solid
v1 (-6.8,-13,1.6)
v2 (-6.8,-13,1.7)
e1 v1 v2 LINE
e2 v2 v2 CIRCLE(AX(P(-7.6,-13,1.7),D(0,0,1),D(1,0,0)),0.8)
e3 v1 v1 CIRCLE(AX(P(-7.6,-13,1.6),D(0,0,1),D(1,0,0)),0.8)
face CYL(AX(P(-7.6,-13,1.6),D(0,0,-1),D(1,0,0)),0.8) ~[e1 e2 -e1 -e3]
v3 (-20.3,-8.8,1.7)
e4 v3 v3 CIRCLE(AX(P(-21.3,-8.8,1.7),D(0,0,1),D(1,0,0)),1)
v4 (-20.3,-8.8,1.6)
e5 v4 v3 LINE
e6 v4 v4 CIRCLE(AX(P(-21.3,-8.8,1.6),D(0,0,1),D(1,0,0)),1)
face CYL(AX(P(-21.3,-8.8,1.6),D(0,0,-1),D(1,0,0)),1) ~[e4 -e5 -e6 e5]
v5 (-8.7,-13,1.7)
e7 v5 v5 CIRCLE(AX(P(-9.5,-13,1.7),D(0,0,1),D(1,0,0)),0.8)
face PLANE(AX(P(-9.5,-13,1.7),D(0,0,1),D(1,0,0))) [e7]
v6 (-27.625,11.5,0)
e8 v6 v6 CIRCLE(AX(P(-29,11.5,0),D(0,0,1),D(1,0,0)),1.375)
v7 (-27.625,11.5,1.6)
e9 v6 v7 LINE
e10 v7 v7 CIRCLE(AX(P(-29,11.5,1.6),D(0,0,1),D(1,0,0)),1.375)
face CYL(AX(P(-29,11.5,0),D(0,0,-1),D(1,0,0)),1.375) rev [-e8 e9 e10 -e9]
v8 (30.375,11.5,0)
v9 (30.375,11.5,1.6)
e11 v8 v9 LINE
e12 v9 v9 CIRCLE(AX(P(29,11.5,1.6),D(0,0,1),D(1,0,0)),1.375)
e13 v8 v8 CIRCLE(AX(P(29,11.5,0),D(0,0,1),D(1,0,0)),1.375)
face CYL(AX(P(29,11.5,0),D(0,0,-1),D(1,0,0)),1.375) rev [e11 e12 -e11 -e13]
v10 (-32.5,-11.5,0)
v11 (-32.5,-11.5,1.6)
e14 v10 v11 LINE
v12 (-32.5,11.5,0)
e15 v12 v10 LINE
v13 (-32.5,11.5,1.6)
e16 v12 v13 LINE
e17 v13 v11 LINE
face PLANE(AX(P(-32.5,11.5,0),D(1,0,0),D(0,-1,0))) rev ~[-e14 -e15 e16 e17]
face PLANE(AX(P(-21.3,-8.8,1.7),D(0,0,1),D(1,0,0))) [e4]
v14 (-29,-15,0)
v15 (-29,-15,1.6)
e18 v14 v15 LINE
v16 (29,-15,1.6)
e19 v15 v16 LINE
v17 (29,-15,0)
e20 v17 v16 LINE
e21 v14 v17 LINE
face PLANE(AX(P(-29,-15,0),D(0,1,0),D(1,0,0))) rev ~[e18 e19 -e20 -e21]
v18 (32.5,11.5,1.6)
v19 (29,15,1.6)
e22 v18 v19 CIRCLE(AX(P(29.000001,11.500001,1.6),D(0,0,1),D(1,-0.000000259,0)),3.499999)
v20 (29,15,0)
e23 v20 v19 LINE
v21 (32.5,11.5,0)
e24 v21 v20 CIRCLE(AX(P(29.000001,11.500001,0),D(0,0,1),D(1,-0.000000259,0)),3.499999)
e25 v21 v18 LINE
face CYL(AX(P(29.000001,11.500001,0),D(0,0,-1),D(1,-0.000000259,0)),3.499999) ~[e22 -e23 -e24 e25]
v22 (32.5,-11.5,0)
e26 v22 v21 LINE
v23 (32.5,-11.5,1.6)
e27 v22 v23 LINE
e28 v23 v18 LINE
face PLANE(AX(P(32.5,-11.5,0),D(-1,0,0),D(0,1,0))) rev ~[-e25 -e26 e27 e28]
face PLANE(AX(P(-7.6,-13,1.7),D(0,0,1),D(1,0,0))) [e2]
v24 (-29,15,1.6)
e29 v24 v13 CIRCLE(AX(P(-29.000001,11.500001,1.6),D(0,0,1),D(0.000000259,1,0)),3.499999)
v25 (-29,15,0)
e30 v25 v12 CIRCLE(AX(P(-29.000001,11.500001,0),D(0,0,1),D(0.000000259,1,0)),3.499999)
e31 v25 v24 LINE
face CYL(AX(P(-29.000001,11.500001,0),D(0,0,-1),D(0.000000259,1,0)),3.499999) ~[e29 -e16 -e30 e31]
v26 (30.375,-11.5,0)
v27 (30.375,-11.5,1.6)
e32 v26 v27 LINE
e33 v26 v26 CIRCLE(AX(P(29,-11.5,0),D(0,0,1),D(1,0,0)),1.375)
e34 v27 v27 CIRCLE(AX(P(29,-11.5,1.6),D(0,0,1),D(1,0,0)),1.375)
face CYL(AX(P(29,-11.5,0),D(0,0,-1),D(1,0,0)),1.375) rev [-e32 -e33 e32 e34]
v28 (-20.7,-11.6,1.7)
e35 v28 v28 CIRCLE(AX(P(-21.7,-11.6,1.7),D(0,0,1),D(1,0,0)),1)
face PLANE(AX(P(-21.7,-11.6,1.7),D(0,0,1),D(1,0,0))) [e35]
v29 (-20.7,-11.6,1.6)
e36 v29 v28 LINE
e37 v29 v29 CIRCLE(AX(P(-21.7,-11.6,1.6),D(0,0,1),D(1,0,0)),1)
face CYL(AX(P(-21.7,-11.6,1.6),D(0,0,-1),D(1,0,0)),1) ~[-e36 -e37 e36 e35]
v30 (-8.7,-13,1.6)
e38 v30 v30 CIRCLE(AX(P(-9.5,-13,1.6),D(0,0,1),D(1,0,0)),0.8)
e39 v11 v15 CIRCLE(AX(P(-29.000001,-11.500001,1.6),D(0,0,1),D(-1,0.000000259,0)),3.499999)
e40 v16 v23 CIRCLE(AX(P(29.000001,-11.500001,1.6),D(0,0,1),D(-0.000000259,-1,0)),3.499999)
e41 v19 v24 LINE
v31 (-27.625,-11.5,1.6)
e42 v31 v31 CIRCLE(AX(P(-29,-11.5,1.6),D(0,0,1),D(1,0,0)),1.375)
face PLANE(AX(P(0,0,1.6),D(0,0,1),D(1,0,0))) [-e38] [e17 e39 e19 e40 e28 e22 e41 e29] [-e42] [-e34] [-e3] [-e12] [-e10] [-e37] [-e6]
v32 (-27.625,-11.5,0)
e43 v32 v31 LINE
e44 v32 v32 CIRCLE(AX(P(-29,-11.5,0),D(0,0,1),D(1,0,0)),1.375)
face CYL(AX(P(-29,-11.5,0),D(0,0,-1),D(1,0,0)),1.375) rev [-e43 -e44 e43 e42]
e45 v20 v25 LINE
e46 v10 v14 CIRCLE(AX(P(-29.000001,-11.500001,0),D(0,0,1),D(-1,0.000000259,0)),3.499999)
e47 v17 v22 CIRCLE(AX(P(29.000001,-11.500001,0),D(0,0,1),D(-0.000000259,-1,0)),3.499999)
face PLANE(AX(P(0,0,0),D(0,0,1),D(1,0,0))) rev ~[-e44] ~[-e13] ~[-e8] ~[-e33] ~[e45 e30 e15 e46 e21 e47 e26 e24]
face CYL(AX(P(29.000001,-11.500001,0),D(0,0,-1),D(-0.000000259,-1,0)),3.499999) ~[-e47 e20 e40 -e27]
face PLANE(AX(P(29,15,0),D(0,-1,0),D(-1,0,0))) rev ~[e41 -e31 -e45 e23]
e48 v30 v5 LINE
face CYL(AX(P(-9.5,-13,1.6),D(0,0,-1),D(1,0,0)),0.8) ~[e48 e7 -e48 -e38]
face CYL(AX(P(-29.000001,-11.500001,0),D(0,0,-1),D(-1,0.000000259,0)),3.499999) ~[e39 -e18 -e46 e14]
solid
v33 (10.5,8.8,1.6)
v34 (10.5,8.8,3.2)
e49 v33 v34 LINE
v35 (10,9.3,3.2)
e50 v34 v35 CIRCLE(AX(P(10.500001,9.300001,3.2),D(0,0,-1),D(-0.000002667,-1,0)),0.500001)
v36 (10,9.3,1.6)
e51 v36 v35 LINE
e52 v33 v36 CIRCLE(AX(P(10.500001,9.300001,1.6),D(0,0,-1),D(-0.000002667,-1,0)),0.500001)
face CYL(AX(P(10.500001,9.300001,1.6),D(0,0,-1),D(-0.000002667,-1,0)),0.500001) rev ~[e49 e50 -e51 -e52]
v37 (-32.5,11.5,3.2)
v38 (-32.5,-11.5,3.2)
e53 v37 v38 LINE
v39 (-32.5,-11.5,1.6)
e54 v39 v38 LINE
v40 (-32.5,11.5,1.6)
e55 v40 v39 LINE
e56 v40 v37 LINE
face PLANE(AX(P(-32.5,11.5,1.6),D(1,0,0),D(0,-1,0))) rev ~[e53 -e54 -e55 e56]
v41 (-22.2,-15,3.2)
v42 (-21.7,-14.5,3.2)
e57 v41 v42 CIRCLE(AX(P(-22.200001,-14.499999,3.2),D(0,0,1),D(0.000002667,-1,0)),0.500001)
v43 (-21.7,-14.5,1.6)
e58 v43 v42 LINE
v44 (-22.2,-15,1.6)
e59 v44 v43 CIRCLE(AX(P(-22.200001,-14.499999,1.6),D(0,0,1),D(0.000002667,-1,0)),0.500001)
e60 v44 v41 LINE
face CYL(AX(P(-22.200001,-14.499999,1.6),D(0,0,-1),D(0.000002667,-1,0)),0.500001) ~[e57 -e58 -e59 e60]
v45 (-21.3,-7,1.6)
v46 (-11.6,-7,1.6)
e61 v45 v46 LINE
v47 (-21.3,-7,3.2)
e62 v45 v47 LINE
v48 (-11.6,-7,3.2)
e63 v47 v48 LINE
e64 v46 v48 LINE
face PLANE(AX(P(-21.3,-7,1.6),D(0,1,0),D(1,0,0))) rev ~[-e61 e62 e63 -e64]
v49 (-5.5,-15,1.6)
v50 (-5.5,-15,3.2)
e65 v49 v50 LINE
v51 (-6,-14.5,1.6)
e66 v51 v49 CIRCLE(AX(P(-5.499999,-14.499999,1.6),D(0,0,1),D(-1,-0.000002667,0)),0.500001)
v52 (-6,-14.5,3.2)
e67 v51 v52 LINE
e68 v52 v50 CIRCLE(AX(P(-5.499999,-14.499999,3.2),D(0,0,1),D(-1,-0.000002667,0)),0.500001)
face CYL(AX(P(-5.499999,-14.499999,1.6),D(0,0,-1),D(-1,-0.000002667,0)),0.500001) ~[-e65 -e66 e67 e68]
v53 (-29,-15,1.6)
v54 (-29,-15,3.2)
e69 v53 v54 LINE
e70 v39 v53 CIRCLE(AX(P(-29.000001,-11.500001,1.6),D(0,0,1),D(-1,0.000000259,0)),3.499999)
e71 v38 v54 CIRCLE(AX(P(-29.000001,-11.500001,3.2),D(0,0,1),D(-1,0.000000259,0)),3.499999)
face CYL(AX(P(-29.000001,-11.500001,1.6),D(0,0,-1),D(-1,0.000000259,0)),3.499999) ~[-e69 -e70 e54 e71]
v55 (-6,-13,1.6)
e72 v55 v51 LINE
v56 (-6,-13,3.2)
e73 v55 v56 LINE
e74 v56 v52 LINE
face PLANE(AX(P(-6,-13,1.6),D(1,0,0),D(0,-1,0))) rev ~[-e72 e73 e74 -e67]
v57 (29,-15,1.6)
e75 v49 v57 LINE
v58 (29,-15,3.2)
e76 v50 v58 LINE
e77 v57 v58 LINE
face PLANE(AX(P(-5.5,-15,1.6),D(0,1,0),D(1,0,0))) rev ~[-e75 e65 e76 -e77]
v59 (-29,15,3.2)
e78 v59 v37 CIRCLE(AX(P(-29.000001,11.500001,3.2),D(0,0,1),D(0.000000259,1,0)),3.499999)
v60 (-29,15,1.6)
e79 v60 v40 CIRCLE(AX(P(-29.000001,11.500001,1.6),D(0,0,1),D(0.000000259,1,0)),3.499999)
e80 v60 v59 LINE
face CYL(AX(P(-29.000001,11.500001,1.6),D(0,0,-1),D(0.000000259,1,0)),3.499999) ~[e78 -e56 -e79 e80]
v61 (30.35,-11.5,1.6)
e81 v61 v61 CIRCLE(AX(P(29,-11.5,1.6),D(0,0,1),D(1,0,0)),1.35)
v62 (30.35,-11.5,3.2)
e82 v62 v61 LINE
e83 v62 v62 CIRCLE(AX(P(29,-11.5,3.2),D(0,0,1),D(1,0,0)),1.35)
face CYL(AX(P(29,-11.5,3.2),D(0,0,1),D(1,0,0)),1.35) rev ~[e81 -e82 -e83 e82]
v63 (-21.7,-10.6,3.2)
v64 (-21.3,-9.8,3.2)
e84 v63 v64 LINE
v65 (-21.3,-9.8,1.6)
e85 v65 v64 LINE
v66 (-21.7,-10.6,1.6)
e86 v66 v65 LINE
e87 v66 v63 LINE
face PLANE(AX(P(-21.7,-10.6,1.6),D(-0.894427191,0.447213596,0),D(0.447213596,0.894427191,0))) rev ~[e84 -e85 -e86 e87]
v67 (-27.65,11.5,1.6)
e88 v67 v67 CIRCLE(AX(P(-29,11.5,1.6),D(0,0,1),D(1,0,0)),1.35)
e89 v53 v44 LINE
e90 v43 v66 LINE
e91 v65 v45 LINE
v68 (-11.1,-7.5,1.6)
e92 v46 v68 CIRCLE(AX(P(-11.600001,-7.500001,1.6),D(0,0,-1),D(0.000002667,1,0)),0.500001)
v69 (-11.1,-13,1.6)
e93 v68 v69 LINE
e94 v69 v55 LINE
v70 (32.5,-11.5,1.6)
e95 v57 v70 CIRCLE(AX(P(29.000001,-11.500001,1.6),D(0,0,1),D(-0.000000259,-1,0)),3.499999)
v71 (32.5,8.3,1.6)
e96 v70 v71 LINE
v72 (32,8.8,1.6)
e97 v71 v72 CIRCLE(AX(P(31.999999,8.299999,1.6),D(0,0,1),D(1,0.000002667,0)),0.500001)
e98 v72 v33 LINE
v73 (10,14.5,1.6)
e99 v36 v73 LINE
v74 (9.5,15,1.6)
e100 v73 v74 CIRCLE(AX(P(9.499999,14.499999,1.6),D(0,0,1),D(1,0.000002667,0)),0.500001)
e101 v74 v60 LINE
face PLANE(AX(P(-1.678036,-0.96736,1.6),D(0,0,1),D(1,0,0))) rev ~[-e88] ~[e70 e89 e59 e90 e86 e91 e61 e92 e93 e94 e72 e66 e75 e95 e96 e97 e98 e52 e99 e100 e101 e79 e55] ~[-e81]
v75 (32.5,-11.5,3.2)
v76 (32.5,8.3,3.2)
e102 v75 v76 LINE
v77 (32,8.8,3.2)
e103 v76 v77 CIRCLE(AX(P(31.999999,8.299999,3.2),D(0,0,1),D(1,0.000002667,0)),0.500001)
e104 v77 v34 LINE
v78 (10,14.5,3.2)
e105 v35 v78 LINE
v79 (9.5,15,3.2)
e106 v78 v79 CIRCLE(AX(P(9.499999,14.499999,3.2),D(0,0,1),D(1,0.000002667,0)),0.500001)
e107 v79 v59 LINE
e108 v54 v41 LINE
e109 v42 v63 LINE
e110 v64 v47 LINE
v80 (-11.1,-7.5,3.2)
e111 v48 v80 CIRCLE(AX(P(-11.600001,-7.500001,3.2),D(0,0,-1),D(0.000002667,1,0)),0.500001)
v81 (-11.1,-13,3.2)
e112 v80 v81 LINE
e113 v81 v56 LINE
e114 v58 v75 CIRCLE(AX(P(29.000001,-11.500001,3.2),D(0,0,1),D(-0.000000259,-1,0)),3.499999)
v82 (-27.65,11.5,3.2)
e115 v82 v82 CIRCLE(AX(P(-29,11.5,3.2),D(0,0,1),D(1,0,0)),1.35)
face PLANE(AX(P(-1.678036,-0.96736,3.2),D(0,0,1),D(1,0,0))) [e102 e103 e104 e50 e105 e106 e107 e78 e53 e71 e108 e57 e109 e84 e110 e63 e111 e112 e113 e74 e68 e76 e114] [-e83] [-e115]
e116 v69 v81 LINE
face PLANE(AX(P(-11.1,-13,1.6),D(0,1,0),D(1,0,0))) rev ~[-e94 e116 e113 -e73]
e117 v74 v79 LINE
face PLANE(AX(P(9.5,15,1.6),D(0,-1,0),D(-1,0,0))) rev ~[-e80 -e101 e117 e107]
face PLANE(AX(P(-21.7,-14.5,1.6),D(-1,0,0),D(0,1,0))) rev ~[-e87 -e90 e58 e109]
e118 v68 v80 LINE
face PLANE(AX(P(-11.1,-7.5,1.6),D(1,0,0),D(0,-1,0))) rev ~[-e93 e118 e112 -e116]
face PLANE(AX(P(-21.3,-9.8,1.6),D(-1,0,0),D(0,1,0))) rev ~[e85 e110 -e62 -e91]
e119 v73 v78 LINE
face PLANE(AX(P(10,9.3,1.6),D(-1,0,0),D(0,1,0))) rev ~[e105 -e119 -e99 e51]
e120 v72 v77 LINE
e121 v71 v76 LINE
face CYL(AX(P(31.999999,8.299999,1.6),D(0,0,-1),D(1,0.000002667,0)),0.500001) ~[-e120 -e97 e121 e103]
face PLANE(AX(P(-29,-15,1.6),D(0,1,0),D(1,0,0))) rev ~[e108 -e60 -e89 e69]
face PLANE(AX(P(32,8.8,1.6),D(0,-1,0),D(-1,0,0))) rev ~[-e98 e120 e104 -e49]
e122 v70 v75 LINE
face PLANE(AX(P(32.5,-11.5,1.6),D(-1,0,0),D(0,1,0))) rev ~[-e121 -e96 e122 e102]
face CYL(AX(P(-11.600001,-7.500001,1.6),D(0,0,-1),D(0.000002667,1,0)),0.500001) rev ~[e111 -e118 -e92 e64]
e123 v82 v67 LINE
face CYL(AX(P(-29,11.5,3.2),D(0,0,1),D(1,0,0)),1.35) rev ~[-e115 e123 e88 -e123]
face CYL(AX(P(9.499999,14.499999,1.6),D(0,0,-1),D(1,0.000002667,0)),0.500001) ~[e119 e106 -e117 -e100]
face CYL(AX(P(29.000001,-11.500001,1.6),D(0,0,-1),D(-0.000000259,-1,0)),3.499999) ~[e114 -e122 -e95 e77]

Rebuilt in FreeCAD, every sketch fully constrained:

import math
import FreeCAD as App
import Part
import Sketcher
from FreeCAD import Vector
Q = App.Units.Quantity

doc = App.newDocument("Part")
body = doc.addObject("PartDesign::Body", "Body")

# Sketch on XY plane
sketch1 = body.newObject("Sketcher::SketchObject", "Sketch")
sketch1.AttachmentSupport = (doc.getObject("XY_Plane"), [""])
sketch1.MapMode = "FlatFace"
sketch1.addGeometry([
    Part.ArcOfCircle(Part.Circle(Vector(29, 11.5, 0), Vector(0, 0, 1), 3.5), math.radians(0), math.radians(90)),  # 0
    Part.LineSegment(Vector(29, 15, 0), Vector(-29, 15, 0)),  # 1
    Part.ArcOfCircle(Part.Circle(Vector(-29, 11.5, 0), Vector(0, 0, 1), 3.5), math.radians(90), math.radians(180)),  # 2
    Part.LineSegment(Vector(-32.5, 11.5, 0), Vector(-32.5, -11.5, 0)),  # 3
    Part.ArcOfCircle(Part.Circle(Vector(-29, -11.5, 0), Vector(0, 0, 1), 3.5), math.radians(180), math.radians(270)),  # 4
    Part.LineSegment(Vector(-29, -15, 0), Vector(29, -15, 0)),  # 5
    Part.ArcOfCircle(Part.Circle(Vector(29, -11.5, 0), Vector(0, 0, 1), 3.5), math.radians(-90), math.radians(0)),  # 6
    Part.LineSegment(Vector(32.5, -11.5, 0), Vector(32.5, 11.5, 0)),  # 7
    Part.Circle(Vector(-29, -11.5, 0), Vector(0, 0, 1), 1.4),  # 8
    Part.Circle(Vector(29, -11.5, 0), Vector(0, 0, 1), 1.4),  # 9
    Part.Circle(Vector(-29, 11.5, 0), Vector(0, 0, 1), 1.4),  # 10
    Part.Circle(Vector(29, 11.5, 0), Vector(0, 0, 1), 1.4),  # 11
], False)
sketch1.addConstraint([
    Sketcher.Constraint("Tangent", 0, 2, 1, 1),
    Sketcher.Constraint("Tangent", 1, 2, 2, 1),
    Sketcher.Constraint("Tangent", 2, 2, 3, 1),
    Sketcher.Constraint("Tangent", 3, 2, 4, 1),
    Sketcher.Constraint("Tangent", 4, 2, 5, 1),
    Sketcher.Constraint("Tangent", 5, 2, 6, 1),
    Sketcher.Constraint("Tangent", 6, 2, 7, 1),
    Sketcher.Constraint("Tangent", 7, 2, 0, 1),
    Sketcher.Constraint("Horizontal", 1),
    Sketcher.Constraint("Vertical", 3),
    Sketcher.Constraint("Horizontal", 5),
    Sketcher.Constraint("Vertical", 7),
    Sketcher.Constraint("Coincident", 8, 3, 4, 3),
    Sketcher.Constraint("Coincident", 9, 3, 6, 3),
    Sketcher.Constraint("Coincident", 10, 3, 2, 3),
    Sketcher.Constraint("Coincident", 11, 3, 0, 3),
    Sketcher.Constraint("Equal", 0, 2),
    Sketcher.Constraint("Equal", 2, 4),
    Sketcher.Constraint("Equal", 4, 6),
    Sketcher.Constraint("Equal", 8, 9),
    Sketcher.Constraint("Equal", 9, 10),
    Sketcher.Constraint("Equal", 10, 11),
    Sketcher.Constraint("Symmetric", 0, 3, 4, 3, -1, 1),
    Sketcher.Constraint("Radius", 0, Q("3.499999 mm")),
    Sketcher.Constraint("Diameter", 8, Q("2.75 mm")),
    Sketcher.Constraint("DistanceX", 1, 2, 1, 1, Q("58 mm")),
    Sketcher.Constraint("DistanceY", 3, 2, 3, 1, Q("23 mm")),
])
pad1 = body.newObject("PartDesign::Pad", "Pad")
pad1.Profile = sketch1
pad1.Length = 1.6

# Sketch on XY plane
sketch2 = body.newObject("Sketcher::SketchObject", "Sketch001")
sketch2.AttachmentSupport = (doc.getObject("XY_Plane"), [""])
sketch2.MapMode = "FlatFace"
sketch2.AttachmentOffset = App.Placement(Vector(0, 0, 1.6), App.Rotation())
sketch2.addGeometry([
    Part.Circle(Vector(-21.7, -11.6, 0), Vector(0, 0, 1), 1),
    Part.Circle(Vector(-21.3, -8.8, 0), Vector(0, 0, 1), 1),
    Part.Circle(Vector(-9.5, -13, 0), Vector(0, 0, 1), 0.8),
    Part.Circle(Vector(-7.6, -13, 0), Vector(0, 0, 1), 0.8),
], False)
sketch2.addConstraint([
    Sketcher.Constraint("Equal", 0, 1),
    Sketcher.Constraint("Equal", 2, 3),
    Sketcher.Constraint("Horizontal", 2, 3, 3, 3),
    Sketcher.Constraint("Diameter", 0, Q("2 mm")),
    Sketcher.Constraint("Diameter", 2, Q("1.6 mm")),
    Sketcher.Constraint("DistanceY", 2, 3, -1, 1, Q("13 mm")),
    Sketcher.Constraint("DistanceX", 0, 3, -1, 1, Q("21.7 mm")),
    Sketcher.Constraint("DistanceY", 0, 3, -1, 1, Q("11.6 mm")),
    Sketcher.Constraint("DistanceX", 1, 3, -1, 1, Q("21.3 mm")),
    Sketcher.Constraint("DistanceY", 1, 3, -1, 1, Q("8.8 mm")),
    Sketcher.Constraint("DistanceX", 2, 3, -1, 1, Q("9.5 mm")),
    Sketcher.Constraint("DistanceX", 3, 3, -1, 1, Q("7.6 mm")),
])
pad2 = body.newObject("PartDesign::Pad", "Pad001")
pad2.Profile = sketch2
pad2.Length = 0.1
body2 = doc.addObject("PartDesign::Body", "Body001")

# Sketch on XY plane
sketch3 = body2.newObject("Sketcher::SketchObject", "Sketch002")
sketch3.AttachmentSupport = (doc.getObject("XY_Plane001"), [""])
sketch3.MapMode = "FlatFace"
sketch3.AttachmentOffset = App.Placement(Vector(0, 0, 1.6), App.Rotation())
sketch3.addGeometry([
    Part.ArcOfCircle(Part.Circle(Vector(9.5, 14.5, 0), Vector(0, 0, 1), 0.5), math.radians(0), math.radians(90)),  # 0
    Part.LineSegment(Vector(9.5, 15, 0), Vector(-29, 15, 0)),  # 1
    Part.ArcOfCircle(Part.Circle(Vector(-29, 11.5, 0), Vector(0, 0, 1), 3.5), math.radians(90), math.radians(180)),  # 2
    Part.LineSegment(Vector(-32.5, 11.5, 0), Vector(-32.5, -11.5, 0)),  # 3
    Part.ArcOfCircle(Part.Circle(Vector(-29, -11.5, 0), Vector(0, 0, 1), 3.5), math.radians(180), math.radians(270)),  # 4
    Part.LineSegment(Vector(-29, -15, 0), Vector(-22.2, -15, 0)),  # 5
    Part.ArcOfCircle(Part.Circle(Vector(-22.2, -14.5, 0), Vector(0, 0, 1), 0.5), math.radians(-90), math.radians(0)),  # 6
    Part.LineSegment(Vector(-21.7, -14.5, 0), Vector(-21.7, -10.6, 0)),  # 7
    Part.LineSegment(Vector(-21.7, -10.6, 0), Vector(-21.3, -9.8, 0)),  # 8
    Part.LineSegment(Vector(-21.3, -9.8, 0), Vector(-21.3, -7, 0)),  # 9
    Part.LineSegment(Vector(-21.3, -7, 0), Vector(-11.6, -7, 0)),  # 10
    Part.ArcOfCircle(Part.Circle(Vector(-11.6, -7.5, 0), Vector(0, 0, 1), 0.5), math.radians(0), math.radians(90)),  # 11
    Part.LineSegment(Vector(-11.1, -7.5, 0), Vector(-11.1, -13, 0)),  # 12
    Part.LineSegment(Vector(-11.1, -13, 0), Vector(-6, -13, 0)),  # 13
    Part.LineSegment(Vector(-6, -13, 0), Vector(-6, -14.5, 0)),  # 14
    Part.ArcOfCircle(Part.Circle(Vector(-5.5, -14.5, 0), Vector(0, 0, 1), 0.5), math.radians(-180), math.radians(-90)),  # 15
    Part.LineSegment(Vector(-5.5, -15, 0), Vector(29, -15, 0)),  # 16
    Part.ArcOfCircle(Part.Circle(Vector(29, -11.5, 0), Vector(0, 0, 1), 3.5), math.radians(-90), math.radians(0)),  # 17
    Part.LineSegment(Vector(32.5, -11.5, 0), Vector(32.5, 8.3, 0)),  # 18
    Part.ArcOfCircle(Part.Circle(Vector(32, 8.3, 0), Vector(0, 0, 1), 0.5), math.radians(0), math.radians(90)),  # 19
    Part.LineSegment(Vector(32, 8.8, 0), Vector(10.5, 8.8, 0)),  # 20
    Part.ArcOfCircle(Part.Circle(Vector(10.5, 9.3, 0), Vector(0, 0, 1), 0.5), math.radians(-180), math.radians(-90)),  # 21
    Part.LineSegment(Vector(10, 9.3, 0), Vector(10, 14.5, 0)),  # 22
], False)
sketch3.addConstraint([
    Sketcher.Constraint("Coincident", 0, 2, 1, 1),
    Sketcher.Constraint("Tangent", 1, 2, 2, 1),
    Sketcher.Constraint("Tangent", 2, 2, 3, 1),
    Sketcher.Constraint("Tangent", 3, 2, 4, 1),
    Sketcher.Constraint("Tangent", 4, 2, 5, 1),
    Sketcher.Constraint("Coincident", 5, 2, 6, 1),
    Sketcher.Constraint("Coincident", 6, 2, 7, 1),
    Sketcher.Constraint("Coincident", 7, 2, 8, 1),
    Sketcher.Constraint("Coincident", 8, 2, 9, 1),
    Sketcher.Constraint("Coincident", 9, 2, 10, 1),
    Sketcher.Constraint("Coincident", 10, 2, 11, 2),
    Sketcher.Constraint("Coincident", 11, 1, 12, 1),
    Sketcher.Constraint("Coincident", 12, 2, 13, 1),
    Sketcher.Constraint("Coincident", 13, 2, 14, 1),
    Sketcher.Constraint("Coincident", 14, 2, 15, 1),
    Sketcher.Constraint("Coincident", 15, 2, 16, 1),
    Sketcher.Constraint("Tangent", 16, 2, 17, 1),
    Sketcher.Constraint("Tangent", 17, 2, 18, 1),
    Sketcher.Constraint("Coincident", 18, 2, 19, 1),
    Sketcher.Constraint("Coincident", 19, 2, 20, 1),
    Sketcher.Constraint("Coincident", 20, 2, 21, 2),
    Sketcher.Constraint("Coincident", 21, 1, 22, 1),
    Sketcher.Constraint("Coincident", 22, 2, 0, 1),
    Sketcher.Constraint("Horizontal", 1),
    Sketcher.Constraint("Vertical", 3),
    Sketcher.Constraint("Horizontal", 5),
    Sketcher.Constraint("Vertical", 7),
    Sketcher.Constraint("Vertical", 9),
    Sketcher.Constraint("Horizontal", 10),
    Sketcher.Constraint("Vertical", 12),
    Sketcher.Constraint("Horizontal", 13),
    Sketcher.Constraint("Vertical", 14),
    Sketcher.Constraint("Horizontal", 16),
    Sketcher.Constraint("Vertical", 18),
    Sketcher.Constraint("Horizontal", 20),
    Sketcher.Constraint("Vertical", 22),
    Sketcher.Constraint("Equal", 2, 4),
    Sketcher.Constraint("Equal", 0, 6),
    Sketcher.Constraint("Equal", 6, 11),
    Sketcher.Constraint("Equal", 11, 15),
    Sketcher.Constraint("Equal", 4, 17),
    Sketcher.Constraint("Equal", 15, 19),
    Sketcher.Constraint("Equal", 19, 21),
    Sketcher.Constraint("Symmetric", 2, 3, 17, 3, -1, 1),
    Sketcher.Constraint("Horizontal", 6, 3, 15, 3),
    Sketcher.Constraint("Horizontal", 15, 3, 6, 2),
    Sketcher.Constraint("Horizontal", 6, 2, 14, 2),
    Sketcher.Constraint("Horizontal", 19, 3, 18, 2),
    Sketcher.Constraint("Horizontal", 0, 3, 22, 2),
    Sketcher.Constraint("Vertical", 6, 3, 5, 2),
    Sketcher.Constraint("Vertical", 11, 3, 10, 2),
    Sketcher.Constraint("Vertical", 21, 3, 20, 2),
    Sketcher.Constraint("Radius", 0, Q("0.500001 mm")),
    Sketcher.Constraint("Radius", 2, Q("3.499999 mm")),
    Sketcher.Constraint("DistanceY", 3, 2, 3, 1, Q("23 mm")),
    Sketcher.Constraint("DistanceX", 1, 2, 1, 1, Q("38.5 mm")),
    Sketcher.Constraint("DistanceX", 5, 1, 5, 2, Q("6.8 mm")),
    Sketcher.Constraint("DistanceX", 10, 1, 10, 2, Q("9.7 mm")),
    Sketcher.Constraint("DistanceX", 13, 1, 13, 2, Q("5.1 mm")),
    Sketcher.Constraint("DistanceX", 16, 1, 16, 2, Q("34.5 mm")),
    Sketcher.Constraint("DistanceX", 20, 2, 20, 1, Q("21.5 mm")),
    Sketcher.Constraint("DistanceY", 7, 1, 7, 2, Q("3.9 mm")),
    Sketcher.Constraint("DistanceY", 9, 1, 9, 2, Q("2.8 mm")),
    Sketcher.Constraint("DistanceY", 12, 2, 12, 1, Q("5.5 mm")),
    Sketcher.Constraint("DistanceY", 14, 2, 14, 1, Q("1.5 mm")),
    Sketcher.Constraint("DistanceY", 18, 1, 18, 2, Q("19.8 mm")),
    Sketcher.Constraint("DistanceY", 22, 1, 22, 2, Q("5.2 mm")),
    Sketcher.Constraint("DistanceX", 2, 3, -1, 1, Q("29.000001 mm")),
    Sketcher.Constraint("DistanceY", 9, 2, -1, 1, Q("7 mm")),
    Sketcher.Constraint("DistanceX", 13, 2, -1, 1, Q("6 mm")),
    Sketcher.Constraint("DistanceX", -1, 1, 19, 2, Q("32 mm")),
])
pad3 = body2.newObject("PartDesign::Pad", "Pad002")
pad3.Profile = sketch3
pad3.Length = 1.6

# Sketch on XY plane
sketch4 = body2.newObject("Sketcher::SketchObject", "Sketch003")
sketch4.AttachmentSupport = (doc.getObject("XY_Plane001"), [""])
sketch4.MapMode = "FlatFace"
sketch4.AttachmentOffset = App.Placement(Vector(0, 0, 3.2), App.Rotation())
sketch4.addGeometry([
    Part.Circle(Vector(-29, 11.5, 0), Vector(0, 0, 1), 1.4),
    Part.Circle(Vector(29, -11.5, 0), Vector(0, 0, 1), 1.4),
], False)
sketch4.addConstraint([
    Sketcher.Constraint("Equal", 0, 1),
    Sketcher.Constraint("Symmetric", 0, 3, 1, 3, -1, 1),
    Sketcher.Constraint("Diameter", 0, Q("2.7 mm")),
    Sketcher.Constraint("DistanceX", 0, 3, -1, 1, Q("29 mm")),
    Sketcher.Constraint("DistanceY", 1, 3, 0, 3, Q("23 mm")),
])
pocket1 = body2.newObject("PartDesign::Pocket", "Pocket")
pocket1.Profile = sketch4
pocket1.Length = 1.6

doc.recompute()
